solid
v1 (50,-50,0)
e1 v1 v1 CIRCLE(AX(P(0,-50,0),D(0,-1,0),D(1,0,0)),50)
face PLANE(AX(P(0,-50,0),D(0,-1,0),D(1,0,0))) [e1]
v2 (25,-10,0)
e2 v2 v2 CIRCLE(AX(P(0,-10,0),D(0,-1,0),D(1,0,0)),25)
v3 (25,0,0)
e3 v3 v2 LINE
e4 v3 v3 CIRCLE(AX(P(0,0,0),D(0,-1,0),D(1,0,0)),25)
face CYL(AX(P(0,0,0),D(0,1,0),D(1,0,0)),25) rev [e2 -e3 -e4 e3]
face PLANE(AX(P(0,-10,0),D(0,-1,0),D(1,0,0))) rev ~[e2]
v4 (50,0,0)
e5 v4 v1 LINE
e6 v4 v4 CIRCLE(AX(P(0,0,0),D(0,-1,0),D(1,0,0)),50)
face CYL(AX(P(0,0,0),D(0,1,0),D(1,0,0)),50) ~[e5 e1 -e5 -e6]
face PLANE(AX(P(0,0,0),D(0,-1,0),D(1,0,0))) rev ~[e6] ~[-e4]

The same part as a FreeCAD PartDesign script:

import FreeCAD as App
import Part
import Sketcher
from FreeCAD import Vector

doc = App.newDocument("Part")
body = doc.addObject("PartDesign::Body", "Body")

# Sketch on XZ plane
sketch1 = body.newObject("Sketcher::SketchObject", "Sketch")
sketch1.AttachmentSupport = (doc.getObject("XZ_Plane"), [""])
sketch1.MapMode = "FlatFace"
sketch1.addGeometry(Part.Circle(Vector(0, 0, 0), Vector(0, 0, 1), 50), False)
sketch1.addConstraint(Sketcher.Constraint("Coincident", 0, 3, -1, 1))
sketch1.addConstraint(Sketcher.Constraint("Diameter", 0, 100.0))
pad1 = body.newObject("PartDesign::Pad", "Pad")
pad1.Profile = sketch1
pad1.Length = 50

# Sketch on XZ plane
sketch2 = body.newObject("Sketcher::SketchObject", "Sketch001")
sketch2.AttachmentSupport = (doc.getObject("XZ_Plane"), [""])
sketch2.MapMode = "FlatFace"
sketch2.addGeometry(Part.Circle(Vector(0, 0, 0), Vector(0, 0, 1), 25), False)
sketch2.addConstraint(Sketcher.Constraint("Coincident", 0, 3, -1, 1))
sketch2.addConstraint(Sketcher.Constraint("Diameter", 0, 50.0))
pocket1 = body.newObject("PartDesign::Pocket", "Pocket")
pocket1.Profile = sketch2
pocket1.Length = 10
pocket1.Reversed = True

doc.recompute()
